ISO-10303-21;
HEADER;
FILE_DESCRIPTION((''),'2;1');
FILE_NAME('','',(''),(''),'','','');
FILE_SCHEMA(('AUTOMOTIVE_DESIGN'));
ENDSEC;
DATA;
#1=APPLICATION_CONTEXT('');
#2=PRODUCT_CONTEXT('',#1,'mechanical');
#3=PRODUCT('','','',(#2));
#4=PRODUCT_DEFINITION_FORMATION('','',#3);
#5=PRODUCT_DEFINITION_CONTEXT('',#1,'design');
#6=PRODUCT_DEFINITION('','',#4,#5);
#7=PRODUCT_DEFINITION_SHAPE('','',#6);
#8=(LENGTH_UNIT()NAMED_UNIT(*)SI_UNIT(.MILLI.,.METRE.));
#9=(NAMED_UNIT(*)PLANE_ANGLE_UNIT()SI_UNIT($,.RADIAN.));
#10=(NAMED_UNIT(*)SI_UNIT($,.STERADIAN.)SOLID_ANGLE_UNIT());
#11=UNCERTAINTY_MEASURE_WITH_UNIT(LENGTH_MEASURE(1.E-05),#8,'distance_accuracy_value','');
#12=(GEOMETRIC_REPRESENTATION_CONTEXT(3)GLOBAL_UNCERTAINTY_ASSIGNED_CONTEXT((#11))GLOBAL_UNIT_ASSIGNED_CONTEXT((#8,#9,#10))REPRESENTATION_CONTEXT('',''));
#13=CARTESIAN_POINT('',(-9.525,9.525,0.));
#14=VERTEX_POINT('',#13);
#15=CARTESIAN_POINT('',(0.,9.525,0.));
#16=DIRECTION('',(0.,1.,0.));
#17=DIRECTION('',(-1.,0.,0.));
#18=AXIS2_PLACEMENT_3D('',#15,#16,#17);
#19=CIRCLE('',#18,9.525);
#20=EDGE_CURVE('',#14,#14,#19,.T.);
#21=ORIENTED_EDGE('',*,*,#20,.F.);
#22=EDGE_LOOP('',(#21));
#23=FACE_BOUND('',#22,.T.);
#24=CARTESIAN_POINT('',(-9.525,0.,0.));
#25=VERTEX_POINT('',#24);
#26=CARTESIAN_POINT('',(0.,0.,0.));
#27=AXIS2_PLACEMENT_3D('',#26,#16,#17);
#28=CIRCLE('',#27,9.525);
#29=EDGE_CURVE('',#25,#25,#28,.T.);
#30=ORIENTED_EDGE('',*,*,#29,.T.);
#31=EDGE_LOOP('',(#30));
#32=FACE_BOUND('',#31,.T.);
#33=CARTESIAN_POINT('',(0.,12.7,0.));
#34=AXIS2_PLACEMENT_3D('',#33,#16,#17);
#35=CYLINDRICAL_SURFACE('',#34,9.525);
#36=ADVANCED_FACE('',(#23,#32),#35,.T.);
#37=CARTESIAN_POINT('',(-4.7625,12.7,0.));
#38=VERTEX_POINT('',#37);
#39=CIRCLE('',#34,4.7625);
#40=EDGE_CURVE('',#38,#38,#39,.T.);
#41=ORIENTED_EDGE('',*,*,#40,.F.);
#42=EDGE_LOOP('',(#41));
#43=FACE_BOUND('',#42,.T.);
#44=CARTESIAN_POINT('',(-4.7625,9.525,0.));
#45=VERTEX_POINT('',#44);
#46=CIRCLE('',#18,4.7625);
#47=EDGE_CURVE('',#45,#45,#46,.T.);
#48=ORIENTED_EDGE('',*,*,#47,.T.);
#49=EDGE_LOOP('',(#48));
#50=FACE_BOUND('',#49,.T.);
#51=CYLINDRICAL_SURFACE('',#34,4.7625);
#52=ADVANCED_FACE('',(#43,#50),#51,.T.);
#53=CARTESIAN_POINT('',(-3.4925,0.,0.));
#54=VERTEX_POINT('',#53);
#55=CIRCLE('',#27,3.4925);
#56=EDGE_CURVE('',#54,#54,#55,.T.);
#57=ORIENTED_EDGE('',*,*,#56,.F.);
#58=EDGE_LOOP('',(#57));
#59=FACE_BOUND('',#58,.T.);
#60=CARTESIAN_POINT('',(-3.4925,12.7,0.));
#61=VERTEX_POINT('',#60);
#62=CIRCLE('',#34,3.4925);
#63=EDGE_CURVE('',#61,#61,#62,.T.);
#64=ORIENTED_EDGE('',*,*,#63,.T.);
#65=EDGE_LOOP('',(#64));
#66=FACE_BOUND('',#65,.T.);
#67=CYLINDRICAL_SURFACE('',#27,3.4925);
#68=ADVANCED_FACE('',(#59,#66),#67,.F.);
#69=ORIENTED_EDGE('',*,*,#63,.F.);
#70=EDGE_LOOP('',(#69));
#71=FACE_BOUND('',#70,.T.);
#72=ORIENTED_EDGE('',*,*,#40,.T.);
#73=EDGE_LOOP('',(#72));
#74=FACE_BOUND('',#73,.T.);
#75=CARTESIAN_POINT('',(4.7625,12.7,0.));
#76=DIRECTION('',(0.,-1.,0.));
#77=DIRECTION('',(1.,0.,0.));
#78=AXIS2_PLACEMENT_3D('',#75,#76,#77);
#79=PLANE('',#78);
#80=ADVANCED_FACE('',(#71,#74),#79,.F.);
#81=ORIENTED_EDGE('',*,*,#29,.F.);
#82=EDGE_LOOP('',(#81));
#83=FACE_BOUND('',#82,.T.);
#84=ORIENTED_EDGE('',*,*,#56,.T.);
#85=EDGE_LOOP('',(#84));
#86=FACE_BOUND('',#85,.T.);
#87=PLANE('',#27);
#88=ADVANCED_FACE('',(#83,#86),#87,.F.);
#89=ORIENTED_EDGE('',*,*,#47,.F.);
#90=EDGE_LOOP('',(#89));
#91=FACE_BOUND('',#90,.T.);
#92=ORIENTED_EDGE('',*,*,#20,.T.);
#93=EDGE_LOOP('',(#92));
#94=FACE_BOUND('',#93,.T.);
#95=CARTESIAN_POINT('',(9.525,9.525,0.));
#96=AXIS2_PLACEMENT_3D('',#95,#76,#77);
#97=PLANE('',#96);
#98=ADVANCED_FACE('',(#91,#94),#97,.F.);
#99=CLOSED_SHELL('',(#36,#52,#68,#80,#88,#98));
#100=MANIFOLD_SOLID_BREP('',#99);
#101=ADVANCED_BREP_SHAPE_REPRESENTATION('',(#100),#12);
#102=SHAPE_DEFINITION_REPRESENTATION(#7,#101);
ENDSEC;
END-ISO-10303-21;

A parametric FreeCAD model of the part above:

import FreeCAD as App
import Part
import Sketcher
from FreeCAD import Vector
Q = App.Units.Quantity


def add_polygon(sketch, points):
    """Adds a closed chain of lines whose ends are joined by coincident constraints."""
    first, n = sketch.GeometryCount, len(points)
    for a, b in zip(points, points[1:] + points[:1]):
        sketch.addGeometry(Part.LineSegment(App.Vector(*a, 0), App.Vector(*b, 0)), False)
    for i in range(n):
        sketch.addConstraint(Sketcher.Constraint("Coincident", first + i, 2, first + (i + 1) % n, 1))

doc = App.newDocument("Part")
body = doc.addObject("PartDesign::Body", "Body")

# Sketch on XY plane
sketch1 = body.newObject("Sketcher::SketchObject", "Sketch")
sketch1.AttachmentSupport = (doc.getObject("XY_Plane"), [""])
sketch1.MapMode = "FlatFace"
add_polygon(sketch1, [(0, 0), (9.5, 0), (9.5, 9.5), (4.8, 9.5), (4.8, 12.7), (0, 12.7)])  # lines 0-5
sketch1.addConstraint([
    Sketcher.Constraint("Horizontal", 0),
    Sketcher.Constraint("Vertical", 1),
    Sketcher.Constraint("Horizontal", 2),
    Sketcher.Constraint("Vertical", 3),
    Sketcher.Constraint("Horizontal", 4),
    Sketcher.Constraint("Vertical", 5),
    Sketcher.Constraint("Coincident", 5, 2, -1, 1),
    Sketcher.Constraint("Equal", 2, 4),
    Sketcher.Constraint("Equal", 0, 1),
    Sketcher.Constraint("DistanceY", 5, 2, 5, 1, Q("0.5 in")),
    Sketcher.Constraint("DistanceX", 0, 1, 0, 2, Q("0.375 in")),
])
revolution = body.newObject("PartDesign::Revolution", "Revolution")
revolution.Profile = sketch1
revolution.ReferenceAxis = (sketch1, ["V_Axis"])
revolution.Angle = 360

# Sketch on XZ plane
sketch2 = body.newObject("Sketcher::SketchObject", "Sketch001")
sketch2.AttachmentSupport = (doc.getObject("XZ_Plane"), [""])
sketch2.MapMode = "FlatFace"
sketch2.AttachmentOffset = App.Placement(Vector(0, 0, -0.5 * 25.4), App.Rotation())
sketch2.addGeometry(Part.Circle(Vector(0, 0, 0), Vector(0, 0, 1), 3.5), False)
sketch2.addConstraint([
    Sketcher.Constraint("Coincident", 0, 3, -1, 1),
    Sketcher.Constraint("Diameter", 0, Q("0.275 in")),
])
pocket1 = body.newObject("PartDesign::Pocket", "Pocket")
pocket1.Profile = sketch2
pocket1.Type = "ThroughAll"
pocket1.Reversed = True

doc.recompute()
